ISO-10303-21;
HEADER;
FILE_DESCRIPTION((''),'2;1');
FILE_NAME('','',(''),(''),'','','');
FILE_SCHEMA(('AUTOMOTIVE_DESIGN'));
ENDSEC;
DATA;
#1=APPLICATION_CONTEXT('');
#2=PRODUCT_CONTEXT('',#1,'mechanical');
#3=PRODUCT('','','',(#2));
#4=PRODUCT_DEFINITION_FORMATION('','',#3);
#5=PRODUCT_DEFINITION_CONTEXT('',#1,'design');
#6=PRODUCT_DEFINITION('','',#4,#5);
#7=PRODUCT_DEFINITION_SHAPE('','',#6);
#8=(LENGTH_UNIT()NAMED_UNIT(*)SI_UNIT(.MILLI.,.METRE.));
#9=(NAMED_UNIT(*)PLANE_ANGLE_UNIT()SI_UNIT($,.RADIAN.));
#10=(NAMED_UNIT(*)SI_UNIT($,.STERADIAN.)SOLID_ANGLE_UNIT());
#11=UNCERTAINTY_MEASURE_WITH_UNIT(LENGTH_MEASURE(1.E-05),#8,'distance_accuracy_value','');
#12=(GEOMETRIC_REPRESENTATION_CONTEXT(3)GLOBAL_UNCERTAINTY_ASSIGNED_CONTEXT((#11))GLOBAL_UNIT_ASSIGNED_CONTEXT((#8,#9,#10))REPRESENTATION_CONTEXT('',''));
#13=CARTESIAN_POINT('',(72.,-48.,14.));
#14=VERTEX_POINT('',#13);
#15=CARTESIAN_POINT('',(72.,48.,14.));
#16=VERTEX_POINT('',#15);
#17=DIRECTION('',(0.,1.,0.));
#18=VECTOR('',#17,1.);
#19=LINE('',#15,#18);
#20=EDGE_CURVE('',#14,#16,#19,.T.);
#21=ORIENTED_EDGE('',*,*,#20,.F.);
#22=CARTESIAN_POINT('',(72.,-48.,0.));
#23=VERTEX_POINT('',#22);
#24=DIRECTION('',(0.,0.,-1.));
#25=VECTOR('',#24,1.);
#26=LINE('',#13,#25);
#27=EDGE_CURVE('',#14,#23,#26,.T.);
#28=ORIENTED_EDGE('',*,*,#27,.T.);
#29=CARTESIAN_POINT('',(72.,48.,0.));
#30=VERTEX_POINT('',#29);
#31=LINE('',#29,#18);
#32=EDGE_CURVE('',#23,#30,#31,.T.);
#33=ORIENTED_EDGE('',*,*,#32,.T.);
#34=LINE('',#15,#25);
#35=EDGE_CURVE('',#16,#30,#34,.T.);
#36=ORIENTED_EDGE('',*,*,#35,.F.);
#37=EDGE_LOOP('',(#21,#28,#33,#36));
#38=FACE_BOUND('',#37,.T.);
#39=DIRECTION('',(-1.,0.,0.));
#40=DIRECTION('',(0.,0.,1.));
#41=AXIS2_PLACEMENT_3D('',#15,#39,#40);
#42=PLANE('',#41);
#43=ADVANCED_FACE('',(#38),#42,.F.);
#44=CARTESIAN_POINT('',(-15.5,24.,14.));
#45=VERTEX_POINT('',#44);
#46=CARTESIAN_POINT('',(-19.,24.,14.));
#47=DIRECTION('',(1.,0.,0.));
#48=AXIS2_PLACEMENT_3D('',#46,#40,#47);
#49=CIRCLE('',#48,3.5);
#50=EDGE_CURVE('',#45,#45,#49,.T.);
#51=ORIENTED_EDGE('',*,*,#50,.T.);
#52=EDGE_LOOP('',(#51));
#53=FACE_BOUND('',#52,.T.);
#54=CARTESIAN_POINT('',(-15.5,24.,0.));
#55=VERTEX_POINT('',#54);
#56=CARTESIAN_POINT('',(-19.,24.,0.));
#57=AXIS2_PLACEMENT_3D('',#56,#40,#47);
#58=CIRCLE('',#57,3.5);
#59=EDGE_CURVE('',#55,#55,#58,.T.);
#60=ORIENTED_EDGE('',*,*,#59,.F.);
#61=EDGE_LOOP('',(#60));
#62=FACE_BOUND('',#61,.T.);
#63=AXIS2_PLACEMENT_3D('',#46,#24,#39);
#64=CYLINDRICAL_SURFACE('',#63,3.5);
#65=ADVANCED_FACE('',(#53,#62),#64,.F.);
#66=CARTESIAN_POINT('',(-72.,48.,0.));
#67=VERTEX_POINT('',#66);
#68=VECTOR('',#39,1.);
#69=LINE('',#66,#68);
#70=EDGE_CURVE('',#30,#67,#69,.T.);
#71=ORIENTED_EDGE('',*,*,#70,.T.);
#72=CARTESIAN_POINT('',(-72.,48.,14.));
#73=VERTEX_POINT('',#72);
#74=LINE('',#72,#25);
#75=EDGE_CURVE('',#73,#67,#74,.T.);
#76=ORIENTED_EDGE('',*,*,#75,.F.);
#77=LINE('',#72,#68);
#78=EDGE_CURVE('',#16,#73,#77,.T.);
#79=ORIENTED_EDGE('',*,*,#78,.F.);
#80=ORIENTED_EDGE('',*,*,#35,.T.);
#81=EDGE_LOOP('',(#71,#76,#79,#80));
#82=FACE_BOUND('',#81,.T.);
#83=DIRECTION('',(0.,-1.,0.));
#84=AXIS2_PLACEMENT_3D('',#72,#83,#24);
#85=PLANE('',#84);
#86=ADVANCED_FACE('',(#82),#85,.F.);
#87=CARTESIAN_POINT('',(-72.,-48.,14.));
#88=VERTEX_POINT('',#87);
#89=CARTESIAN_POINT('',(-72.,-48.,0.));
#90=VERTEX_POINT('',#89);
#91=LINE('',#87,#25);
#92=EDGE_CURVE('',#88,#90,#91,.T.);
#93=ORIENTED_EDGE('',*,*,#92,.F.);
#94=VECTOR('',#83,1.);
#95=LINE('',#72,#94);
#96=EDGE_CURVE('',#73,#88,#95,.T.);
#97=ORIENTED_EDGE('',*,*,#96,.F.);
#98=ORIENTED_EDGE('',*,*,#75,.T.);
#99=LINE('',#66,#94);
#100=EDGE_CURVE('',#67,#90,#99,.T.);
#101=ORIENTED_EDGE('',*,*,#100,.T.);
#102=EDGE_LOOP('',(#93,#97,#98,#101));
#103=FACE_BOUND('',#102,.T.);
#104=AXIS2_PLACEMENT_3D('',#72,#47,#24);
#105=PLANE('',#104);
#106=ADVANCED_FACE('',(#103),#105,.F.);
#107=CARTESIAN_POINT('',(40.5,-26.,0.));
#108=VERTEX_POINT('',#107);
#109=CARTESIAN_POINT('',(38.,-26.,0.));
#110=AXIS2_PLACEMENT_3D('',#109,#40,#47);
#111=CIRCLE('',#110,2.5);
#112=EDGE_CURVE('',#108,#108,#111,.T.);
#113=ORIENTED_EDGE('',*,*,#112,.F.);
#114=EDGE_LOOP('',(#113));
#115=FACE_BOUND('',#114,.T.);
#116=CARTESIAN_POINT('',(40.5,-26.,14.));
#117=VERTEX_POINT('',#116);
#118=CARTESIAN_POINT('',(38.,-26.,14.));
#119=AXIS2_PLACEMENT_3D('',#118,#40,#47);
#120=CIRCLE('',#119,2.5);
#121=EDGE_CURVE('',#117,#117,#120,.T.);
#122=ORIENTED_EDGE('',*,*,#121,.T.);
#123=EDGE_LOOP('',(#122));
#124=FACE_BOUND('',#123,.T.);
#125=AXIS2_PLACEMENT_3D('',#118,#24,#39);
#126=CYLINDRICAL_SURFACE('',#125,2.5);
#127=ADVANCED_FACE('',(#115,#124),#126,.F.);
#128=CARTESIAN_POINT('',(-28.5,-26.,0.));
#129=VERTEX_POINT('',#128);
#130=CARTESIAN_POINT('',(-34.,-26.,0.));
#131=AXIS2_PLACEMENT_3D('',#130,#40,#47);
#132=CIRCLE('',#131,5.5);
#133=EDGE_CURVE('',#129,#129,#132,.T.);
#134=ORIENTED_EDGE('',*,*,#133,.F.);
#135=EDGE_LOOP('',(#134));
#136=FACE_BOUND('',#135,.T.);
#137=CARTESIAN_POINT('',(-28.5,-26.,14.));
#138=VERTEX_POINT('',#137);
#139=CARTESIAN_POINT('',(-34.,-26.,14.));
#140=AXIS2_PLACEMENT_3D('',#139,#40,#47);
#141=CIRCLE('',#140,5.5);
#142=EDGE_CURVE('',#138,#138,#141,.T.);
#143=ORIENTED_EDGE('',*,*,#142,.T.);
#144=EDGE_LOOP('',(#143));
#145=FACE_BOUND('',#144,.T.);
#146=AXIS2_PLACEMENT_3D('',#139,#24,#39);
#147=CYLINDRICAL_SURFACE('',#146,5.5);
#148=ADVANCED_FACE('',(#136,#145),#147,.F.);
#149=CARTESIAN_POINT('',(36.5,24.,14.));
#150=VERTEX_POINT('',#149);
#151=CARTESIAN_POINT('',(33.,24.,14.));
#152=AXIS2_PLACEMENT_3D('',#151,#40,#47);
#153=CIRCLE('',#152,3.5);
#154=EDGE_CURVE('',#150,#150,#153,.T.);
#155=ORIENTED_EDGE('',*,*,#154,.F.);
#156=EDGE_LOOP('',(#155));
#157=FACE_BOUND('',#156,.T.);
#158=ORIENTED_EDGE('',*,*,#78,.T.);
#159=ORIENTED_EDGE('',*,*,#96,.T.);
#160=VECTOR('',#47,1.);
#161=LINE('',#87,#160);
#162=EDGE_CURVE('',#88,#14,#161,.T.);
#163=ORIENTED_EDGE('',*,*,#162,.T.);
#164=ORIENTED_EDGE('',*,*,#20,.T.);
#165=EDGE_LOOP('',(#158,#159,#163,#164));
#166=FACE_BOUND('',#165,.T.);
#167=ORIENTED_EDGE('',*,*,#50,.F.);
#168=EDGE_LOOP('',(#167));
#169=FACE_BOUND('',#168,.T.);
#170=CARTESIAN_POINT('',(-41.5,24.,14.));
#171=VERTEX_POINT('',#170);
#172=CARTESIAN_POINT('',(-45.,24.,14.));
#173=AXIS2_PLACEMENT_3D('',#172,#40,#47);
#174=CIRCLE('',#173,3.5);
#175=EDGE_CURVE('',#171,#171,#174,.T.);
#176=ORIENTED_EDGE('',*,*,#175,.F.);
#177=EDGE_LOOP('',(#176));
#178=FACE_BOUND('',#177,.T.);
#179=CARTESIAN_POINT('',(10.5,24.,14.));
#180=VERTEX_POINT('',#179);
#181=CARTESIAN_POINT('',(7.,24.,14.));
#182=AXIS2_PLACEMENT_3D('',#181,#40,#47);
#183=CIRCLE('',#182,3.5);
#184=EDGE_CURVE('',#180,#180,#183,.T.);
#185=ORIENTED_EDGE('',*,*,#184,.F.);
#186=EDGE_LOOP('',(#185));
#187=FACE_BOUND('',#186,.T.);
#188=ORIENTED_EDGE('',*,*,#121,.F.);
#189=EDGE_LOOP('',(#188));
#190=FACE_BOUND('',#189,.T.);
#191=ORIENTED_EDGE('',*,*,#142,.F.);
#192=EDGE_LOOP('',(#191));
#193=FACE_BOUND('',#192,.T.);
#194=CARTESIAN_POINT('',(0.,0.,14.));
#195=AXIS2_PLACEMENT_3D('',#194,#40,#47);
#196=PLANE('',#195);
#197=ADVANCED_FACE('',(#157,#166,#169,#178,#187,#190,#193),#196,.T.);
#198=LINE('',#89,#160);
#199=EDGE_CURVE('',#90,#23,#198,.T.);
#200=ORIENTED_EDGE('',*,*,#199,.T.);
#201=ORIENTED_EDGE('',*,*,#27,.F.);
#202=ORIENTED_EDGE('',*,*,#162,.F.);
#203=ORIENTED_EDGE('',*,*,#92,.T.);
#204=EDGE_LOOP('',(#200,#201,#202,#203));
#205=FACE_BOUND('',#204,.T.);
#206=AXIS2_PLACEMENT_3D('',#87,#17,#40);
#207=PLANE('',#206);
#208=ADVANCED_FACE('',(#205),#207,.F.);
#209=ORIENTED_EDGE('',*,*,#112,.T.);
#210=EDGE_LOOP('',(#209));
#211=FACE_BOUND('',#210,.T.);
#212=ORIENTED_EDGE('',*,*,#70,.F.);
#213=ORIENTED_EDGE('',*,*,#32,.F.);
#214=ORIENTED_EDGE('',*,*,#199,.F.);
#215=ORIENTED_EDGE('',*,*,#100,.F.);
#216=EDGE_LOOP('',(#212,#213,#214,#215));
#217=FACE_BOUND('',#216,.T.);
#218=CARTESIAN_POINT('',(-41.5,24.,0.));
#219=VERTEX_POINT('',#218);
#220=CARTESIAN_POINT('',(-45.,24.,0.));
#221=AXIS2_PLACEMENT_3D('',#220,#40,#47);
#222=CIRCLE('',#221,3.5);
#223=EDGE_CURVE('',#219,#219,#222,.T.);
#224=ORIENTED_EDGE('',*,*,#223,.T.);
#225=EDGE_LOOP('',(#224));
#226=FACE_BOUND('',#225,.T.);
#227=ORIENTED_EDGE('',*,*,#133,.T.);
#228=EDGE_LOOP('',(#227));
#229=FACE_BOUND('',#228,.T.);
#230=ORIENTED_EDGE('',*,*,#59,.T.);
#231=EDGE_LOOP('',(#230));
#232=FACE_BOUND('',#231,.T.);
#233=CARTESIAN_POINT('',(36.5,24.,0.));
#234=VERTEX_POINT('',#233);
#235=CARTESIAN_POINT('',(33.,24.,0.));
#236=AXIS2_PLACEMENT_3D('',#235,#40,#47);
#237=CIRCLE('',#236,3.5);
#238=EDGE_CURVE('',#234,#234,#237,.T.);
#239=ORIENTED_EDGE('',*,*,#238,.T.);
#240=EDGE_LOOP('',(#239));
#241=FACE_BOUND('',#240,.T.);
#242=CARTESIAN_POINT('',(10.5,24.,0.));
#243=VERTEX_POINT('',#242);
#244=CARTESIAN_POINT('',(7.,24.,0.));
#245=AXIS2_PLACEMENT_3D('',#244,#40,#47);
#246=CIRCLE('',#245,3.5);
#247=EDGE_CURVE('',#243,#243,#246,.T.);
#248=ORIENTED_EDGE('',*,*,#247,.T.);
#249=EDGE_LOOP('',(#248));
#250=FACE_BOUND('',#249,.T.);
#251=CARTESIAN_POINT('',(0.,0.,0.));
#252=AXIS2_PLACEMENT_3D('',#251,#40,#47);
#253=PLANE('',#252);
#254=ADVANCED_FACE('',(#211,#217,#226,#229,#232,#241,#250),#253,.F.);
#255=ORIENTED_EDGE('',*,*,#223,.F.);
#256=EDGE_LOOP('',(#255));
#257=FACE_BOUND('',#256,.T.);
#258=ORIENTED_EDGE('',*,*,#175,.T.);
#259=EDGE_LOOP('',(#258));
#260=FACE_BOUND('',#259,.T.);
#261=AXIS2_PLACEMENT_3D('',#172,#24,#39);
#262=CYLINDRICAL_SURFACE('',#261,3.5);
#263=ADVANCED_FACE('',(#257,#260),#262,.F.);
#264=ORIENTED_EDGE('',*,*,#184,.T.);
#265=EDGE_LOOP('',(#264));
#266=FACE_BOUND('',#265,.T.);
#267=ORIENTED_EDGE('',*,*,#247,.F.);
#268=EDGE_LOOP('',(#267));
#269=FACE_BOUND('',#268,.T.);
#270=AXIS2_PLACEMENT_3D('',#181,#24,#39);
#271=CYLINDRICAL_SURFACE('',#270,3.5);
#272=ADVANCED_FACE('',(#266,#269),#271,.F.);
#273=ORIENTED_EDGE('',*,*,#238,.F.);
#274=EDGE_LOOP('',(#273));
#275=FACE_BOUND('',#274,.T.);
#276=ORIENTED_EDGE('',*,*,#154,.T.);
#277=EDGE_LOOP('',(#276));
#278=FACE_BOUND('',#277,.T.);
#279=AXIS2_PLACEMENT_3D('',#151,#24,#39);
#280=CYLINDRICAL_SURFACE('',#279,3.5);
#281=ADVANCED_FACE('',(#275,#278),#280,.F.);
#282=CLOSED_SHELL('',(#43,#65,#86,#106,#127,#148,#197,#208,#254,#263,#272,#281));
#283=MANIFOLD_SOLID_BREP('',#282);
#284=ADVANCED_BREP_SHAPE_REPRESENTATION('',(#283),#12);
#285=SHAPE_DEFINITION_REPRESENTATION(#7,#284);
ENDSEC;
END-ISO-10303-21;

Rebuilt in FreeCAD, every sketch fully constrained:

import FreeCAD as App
import Part
import Sketcher
from FreeCAD import Vector


def add_polygon(sketch, points):
    """Adds a closed chain of lines whose ends are joined by coincident constraints."""
    first, n = sketch.GeometryCount, len(points)
    for a, b in zip(points, points[1:] + points[:1]):
        sketch.addGeometry(Part.LineSegment(App.Vector(*a, 0), App.Vector(*b, 0)), False)
    for i in range(n):
        sketch.addConstraint(Sketcher.Constraint("Coincident", first + i, 2, first + (i + 1) % n, 1))

doc = App.newDocument("Part")
params = doc.addObject("Spreadsheet::Sheet", "Params")
for row, (alias, value) in enumerate([
    ("sketch1_width", "144 mm"),
    ("sketch1_height", "96 mm"),
    ("pad1_length", "14 mm"),
    ("sketch2_diameter", "7 mm"),
    ("linearpattern_pitch", "26 mm"),
    ("sketch3_diameter", "11 mm"),
    ("sketch4_diameter", "5 mm"),
], start=1):
    params.set(f"A{row}", alias)
    params.set(f"B{row}", "=" + value)
    params.setAlias(f"B{row}", alias)

body = doc.addObject("PartDesign::Body", "Body")

# Sketch on XY plane
sketch1 = doc.addObject("Sketcher::SketchObject", "Sketch")
body.addObject(sketch1)
sketch1.AttachmentSupport = (doc.XY_Plane, [""])
sketch1.MapMode = "FlatFace"
add_polygon(sketch1, [(-72, 48), (-72, -48), (72, -48), (72, 48)])  # lines 0-3
sketch1.addConstraint([
    Sketcher.Constraint("Vertical", 0),
    Sketcher.Constraint("Horizontal", 1),
    Sketcher.Constraint("Vertical", 2),
    Sketcher.Constraint("Horizontal", 3),
    Sketcher.Constraint("Symmetric", 0, 2, 2, 2, -1, 1),
    Sketcher.Constraint("DistanceX", 1, 1, 1, 2, 144.0),
    Sketcher.Constraint("DistanceY", 0, 2, 0, 1, 96.0),
])
sketch1.setExpression("Constraints[9]", "Params.sketch1_width")
sketch1.setExpression("Constraints[10]", "Params.sketch1_height")
pad1 = doc.addObject("PartDesign::Pad", "Pad")
body.addObject(pad1)
pad1.Profile = sketch1
pad1.setExpression("Length", "Params.pad1_length")

# Sketch on XY plane
sketch2 = doc.addObject("Sketcher::SketchObject", "Sketch001")
body.addObject(sketch2)
sketch2.AttachmentSupport = (doc.XY_Plane, [""])
sketch2.MapMode = "FlatFace"
sketch2.addGeometry(Part.Circle(Vector(-45, 24, 0), Vector(0, 0, 1), 3.5), False)
sketch2.addConstraint([
    Sketcher.Constraint("Diameter", 0, 7.0),
    Sketcher.Constraint("DistanceX", 0, 3, -1, 1, 45.0),
    Sketcher.Constraint("DistanceY", -1, 1, 0, 3, 24.0),
])
sketch2.setExpression("Constraints[0]", "Params.sketch2_diameter")
pocket1 = doc.addObject("PartDesign::Pocket", "Pocket")
body.addObject(pocket1)
pocket1.Profile = sketch2
pocket1.Type = "ThroughAll"
pocket1.Reversed = True
doc.recompute()

linearpattern = doc.addObject("PartDesign::LinearPattern", "LinearPattern")
body.addObject(linearpattern)
linearpattern.Originals = [pocket1]
linearpattern.Direction = (doc.X_Axis, [""])
linearpattern.Mode = "offset"
linearpattern.setExpression("Offset", "Params.linearpattern_pitch")
linearpattern.Occurrences = 4
body.Tip = linearpattern

# Sketch on XY plane
sketch3 = doc.addObject("Sketcher::SketchObject", "Sketch002")
body.addObject(sketch3)
sketch3.AttachmentSupport = (doc.XY_Plane, [""])
sketch3.MapMode = "FlatFace"
sketch3.addGeometry(Part.Circle(Vector(-34, -26, 0), Vector(0, 0, 1), 6), False)
sketch3.addConstraint([
    Sketcher.Constraint("Diameter", 0, 11.0),
    Sketcher.Constraint("DistanceX", 0, 3, -1, 1, 34.0),
    Sketcher.Constraint("DistanceY", 0, 3, -1, 1, 26.0),
])
sketch3.setExpression("Constraints[0]", "Params.sketch3_diameter")
pocket2 = doc.addObject("PartDesign::Pocket", "Pocket001")
body.addObject(pocket2)
pocket2.Profile = sketch3
pocket2.Type = "ThroughAll"
pocket2.Reversed = True

# Sketch on XY plane
sketch4 = doc.addObject("Sketcher::SketchObject", "Sketch003")
body.addObject(sketch4)
sketch4.AttachmentSupport = (doc.XY_Plane, [""])
sketch4.MapMode = "FlatFace"
sketch4.addGeometry(Part.Circle(Vector(38, -26, 0), Vector(0, 0, 1), 2.5), False)
sketch4.addConstraint([
    Sketcher.Constraint("Diameter", 0, 5.0),
    Sketcher.Constraint("DistanceX", -1, 1, 0, 3, 38.0),
    Sketcher.Constraint("DistanceY", 0, 3, -1, 1, 26.0),
])
sketch4.setExpression("Constraints[0]", "Params.sketch4_diameter")
pocket3 = doc.addObject("PartDesign::Pocket", "Pocket002")
body.addObject(pocket3)
pocket3.Profile = sketch4
pocket3.Type = "ThroughAll"
pocket3.Reversed = True

doc.recompute()
